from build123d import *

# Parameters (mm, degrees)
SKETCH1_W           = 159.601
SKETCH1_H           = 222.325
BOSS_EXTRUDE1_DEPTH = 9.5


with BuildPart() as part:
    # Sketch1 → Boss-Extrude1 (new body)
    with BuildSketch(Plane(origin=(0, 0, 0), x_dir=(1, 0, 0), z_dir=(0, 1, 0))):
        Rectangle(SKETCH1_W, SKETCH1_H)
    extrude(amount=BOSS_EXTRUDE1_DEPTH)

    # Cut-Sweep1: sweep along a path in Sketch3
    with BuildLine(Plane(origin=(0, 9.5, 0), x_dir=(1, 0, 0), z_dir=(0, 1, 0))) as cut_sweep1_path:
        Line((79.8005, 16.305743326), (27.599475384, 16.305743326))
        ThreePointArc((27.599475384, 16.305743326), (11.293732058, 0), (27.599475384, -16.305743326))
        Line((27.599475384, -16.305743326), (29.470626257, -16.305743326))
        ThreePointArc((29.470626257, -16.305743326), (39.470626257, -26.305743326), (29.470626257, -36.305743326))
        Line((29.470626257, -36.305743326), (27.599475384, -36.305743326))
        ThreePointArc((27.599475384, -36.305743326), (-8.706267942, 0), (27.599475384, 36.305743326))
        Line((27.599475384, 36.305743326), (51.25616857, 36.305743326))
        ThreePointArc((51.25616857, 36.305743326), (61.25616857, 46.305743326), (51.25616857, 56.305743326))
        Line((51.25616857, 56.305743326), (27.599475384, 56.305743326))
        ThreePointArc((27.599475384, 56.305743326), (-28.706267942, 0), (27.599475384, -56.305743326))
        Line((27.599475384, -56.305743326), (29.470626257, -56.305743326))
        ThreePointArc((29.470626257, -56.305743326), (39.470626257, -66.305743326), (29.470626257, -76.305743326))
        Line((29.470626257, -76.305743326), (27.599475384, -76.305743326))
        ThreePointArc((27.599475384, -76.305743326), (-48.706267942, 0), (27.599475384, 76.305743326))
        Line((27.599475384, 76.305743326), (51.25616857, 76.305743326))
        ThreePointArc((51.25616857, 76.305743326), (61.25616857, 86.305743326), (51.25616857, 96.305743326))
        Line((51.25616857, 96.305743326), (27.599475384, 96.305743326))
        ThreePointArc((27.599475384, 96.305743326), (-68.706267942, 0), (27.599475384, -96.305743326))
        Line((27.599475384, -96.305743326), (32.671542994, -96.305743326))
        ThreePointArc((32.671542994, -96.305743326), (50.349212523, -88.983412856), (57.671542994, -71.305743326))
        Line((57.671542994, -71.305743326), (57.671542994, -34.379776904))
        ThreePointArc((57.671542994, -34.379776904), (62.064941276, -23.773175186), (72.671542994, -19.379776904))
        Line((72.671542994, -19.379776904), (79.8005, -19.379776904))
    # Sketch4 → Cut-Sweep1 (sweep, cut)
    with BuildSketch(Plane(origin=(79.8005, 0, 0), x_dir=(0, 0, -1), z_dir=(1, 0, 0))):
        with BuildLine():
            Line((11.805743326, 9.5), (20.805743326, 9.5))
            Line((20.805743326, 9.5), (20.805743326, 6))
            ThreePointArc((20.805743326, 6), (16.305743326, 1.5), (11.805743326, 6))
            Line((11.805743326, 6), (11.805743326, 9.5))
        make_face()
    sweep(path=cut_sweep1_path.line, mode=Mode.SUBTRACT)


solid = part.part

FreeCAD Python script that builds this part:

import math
import FreeCAD as App
import Part
import Sketcher
from FreeCAD import Vector

doc = App.newDocument("Part")
body = doc.addObject("PartDesign::Body", "Body")

# Sketch on XZ plane
sketch1 = doc.addObject("Sketcher::SketchObject", "Sketch")
body.addObject(sketch1)
sketch1.AttachmentSupport = (doc.XZ_Plane, [""])
sketch1.MapMode = "FlatFace"
sketch1.addGeometry(Part.LineSegment(Vector(-80, -111, 0), Vector(-80, 111, 0)), False)
sketch1.addGeometry(Part.LineSegment(Vector(-80, 111, 0), Vector(80, 111, 0)), False)
sketch1.addGeometry(Part.LineSegment(Vector(80, 111, 0), Vector(80, -111, 0)), False)
sketch1.addGeometry(Part.LineSegment(Vector(80, -111, 0), Vector(-80, -111, 0)), False)
sketch1.addConstraint(Sketcher.Constraint("Coincident", 0, 2, 1, 1))
sketch1.addConstraint(Sketcher.Constraint("Coincident", 1, 2, 2, 1))
sketch1.addConstraint(Sketcher.Constraint("Coincident", 2, 2, 3, 1))
sketch1.addConstraint(Sketcher.Constraint("Coincident", 3, 2, 0, 1))
sketch1.addConstraint(Sketcher.Constraint("Vertical", 0))
sketch1.addConstraint(Sketcher.Constraint("Horizontal", 1))
sketch1.addConstraint(Sketcher.Constraint("Vertical", 2))
sketch1.addConstraint(Sketcher.Constraint("Horizontal", 3))
sketch1.addConstraint(Sketcher.Constraint("Symmetric", 0, 2, 2, 2, -1, 1))
sketch1.addConstraint(Sketcher.Constraint("DistanceX", 1, 1, 1, 2, 159.601))
sketch1.addConstraint(Sketcher.Constraint("DistanceY", 0, 1, 0, 2, 222.325))
pad1 = doc.addObject("PartDesign::Pad", "Pad")
body.addObject(pad1)
pad1.Profile = sketch1
pad1.Length = 9.5
pad1.Reversed = True

# Sketch on YZ plane
sketch2 = doc.addObject("Sketcher::SketchObject", "Sketch001")
body.addObject(sketch2)
sketch2.AttachmentSupport = (doc.YZ_Plane, [""])
sketch2.MapMode = "FlatFace"
sketch2.AttachmentOffset = App.Placement(Vector(0, 0, 79.8005), App.Rotation())
sketch2.addGeometry(Part.LineSegment(Vector(9.5, -20.8, 0), Vector(9.5, -11.8, 0)), False)
sketch2.addGeometry(Part.LineSegment(Vector(9.5, -11.8, 0), Vector(6, -11.8, 0)), False)
sketch2.addGeometry(Part.ArcOfCircle(Part.Circle(Vector(6, -16.3, 0), Vector(0, 0, 1), 4.5), math.radians(90), math.radians(270)), False)
sketch2.addGeometry(Part.LineSegment(Vector(6, -20.8, 0), Vector(9.5, -20.8, 0)), False)
sketch2.addConstraint(Sketcher.Constraint("Coincident", 0, 2, 1, 1))
sketch2.addConstraint(Sketcher.Constraint("Tangent", 1, 2, 2, 1))
sketch2.addConstraint(Sketcher.Constraint("Tangent", 2, 2, 3, 1))
sketch2.addConstraint(Sketcher.Constraint("Coincident", 3, 2, 0, 1))
sketch2.addConstraint(Sketcher.Constraint("Vertical", 0))
sketch2.addConstraint(Sketcher.Constraint("Horizontal", 1))
sketch2.addConstraint(Sketcher.Constraint("Horizontal", 3))
sketch2.addConstraint(Sketcher.Constraint("Radius", 2, 4.5))
sketch2.addConstraint(Sketcher.Constraint("DistanceX", 1, 2, 1, 1, 3.5))
sketch2.addConstraint(Sketcher.Constraint("DistanceX", -1, 1, 2, 3, 6.0))
sketch2.addConstraint(Sketcher.Constraint("DistanceY", 2, 3, -1, 1, 16.305743))

# Sketch on XZ plane
sketch3 = doc.addObject("Sketcher::SketchObject", "Sketch002")
body.addObject(sketch3)
sketch3.AttachmentSupport = (doc.XZ_Plane, [""])
sketch3.MapMode = "FlatFace"
sketch3.AttachmentOffset = App.Placement(Vector(0, 0, -9.5), App.Rotation())
sketch3.addGeometry(Part.LineSegment(Vector(79.8, -16.3, 0), Vector(27.6, -16.3, 0)), False)
sketch3.addGeometry(Part.ArcOfCircle(Part.Circle(Vector(27.6, 0, 0), Vector(0, 0, 1), 16.3), math.radians(90), math.radians(270)), False)
sketch3.addGeometry(Part.LineSegment(Vector(27.6, 16.3, 0), Vector(29.5, 16.3, 0)), False)
sketch3.addGeometry(Part.ArcOfCircle(Part.Circle(Vector(29.5, 26.3, 0), Vector(0, 0, 1), 10), math.radians(-90), math.radians(90)), False)
sketch3.addGeometry(Part.LineSegment(Vector(29.5, 36.3, 0), Vector(27.6, 36.3, 0)), False)
sketch3.addGeometry(Part.ArcOfCircle(Part.Circle(Vector(27.6, 0, 0), Vector(0, 0, 1), 36.3), math.radians(90), math.radians(270)), False)
sketch3.addGeometry(Part.LineSegment(Vector(27.6, -36.3, 0), Vector(51.3, -36.3, 0)), False)
sketch3.addGeometry(Part.ArcOfCircle(Part.Circle(Vector(51.3, -46.3, 0), Vector(0, 0, 1), 10), math.radians(-90), math.radians(90)), False)
sketch3.addGeometry(Part.LineSegment(Vector(51.3, -56.3, 0), Vector(27.6, -56.3, 0)), False)
sketch3.addGeometry(Part.ArcOfCircle(Part.Circle(Vector(27.6, 0, 0), Vector(0, 0, 1), 56.3), math.radians(90), math.radians(270)), False)
sketch3.addGeometry(Part.LineSegment(Vector(27.6, 56.3, 0), Vector(29.5, 56.3, 0)), False)
sketch3.addGeometry(Part.ArcOfCircle(Part.Circle(Vector(29.5, 66.3, 0), Vector(0, 0, 1), 10), math.radians(-90), math.radians(90)), False)
sketch3.addGeometry(Part.LineSegment(Vector(29.5, 76.3, 0), Vector(27.6, 76.3, 0)), False)
sketch3.addGeometry(Part.ArcOfCircle(Part.Circle(Vector(27.6, 0, 0), Vector(0, 0, 1), 76.3), math.radians(90), math.radians(270)), False)
sketch3.addGeometry(Part.LineSegment(Vector(27.6, -76.3, 0), Vector(51.3, -76.3, 0)), False)
sketch3.addGeometry(Part.ArcOfCircle(Part.Circle(Vector(51.3, -86.3, 0), Vector(0, 0, 1), 10), math.radians(-90), math.radians(90)), False)
sketch3.addGeometry(Part.LineSegment(Vector(51.3, -96.3, 0), Vector(27.6, -96.3, 0)), False)
sketch3.addGeometry(Part.ArcOfCircle(Part.Circle(Vector(27.6, 0, 0), Vector(0, 0, 1), 96.3), math.radians(90), math.radians(270)), False)
sketch3.addGeometry(Part.LineSegment(Vector(27.6, 96.3, 0), Vector(32.7, 96.3, 0)), False)
sketch3.addGeometry(Part.ArcOfCircle(Part.Circle(Vector(32.7, 71.3, 0), Vector(0, 0, 1), 25), math.radians(0), math.radians(90)), False)
sketch3.addGeometry(Part.LineSegment(Vector(57.7, 71.3, 0), Vector(57.7, 34.4, 0)), False)
sketch3.addGeometry(Part.ArcOfCircle(Part.Circle(Vector(72.7, 34.4, 0), Vector(0, 0, 1), 15), math.radians(180), math.radians(270)), False)
sketch3.addGeometry(Part.LineSegment(Vector(72.7, 19.4, 0), Vector(79.8, 19.4, 0)), False)
sketch3.addConstraint(Sketcher.Constraint("Tangent", 0, 2, 1, 2))
sketch3.addConstraint(Sketcher.Constraint("Tangent", 1, 1, 2, 1))
sketch3.addConstraint(Sketcher.Constraint("Tangent", 2, 2, 3, 1))
sketch3.addConstraint(Sketcher.Constraint("Tangent", 3, 2, 4, 1))
sketch3.addConstraint(Sketcher.Constraint("Tangent", 4, 2, 5, 1))
sketch3.addConstraint(Sketcher.Constraint("Tangent", 5, 2, 6, 1))
sketch3.addConstraint(Sketcher.Constraint("Tangent", 6, 2, 7, 2))
sketch3.addConstraint(Sketcher.Constraint("Tangent", 7, 1, 8, 1))
sketch3.addConstraint(Sketcher.Constraint("Tangent", 8, 2, 9, 2))
sketch3.addConstraint(Sketcher.Constraint("Tangent", 9, 1, 10, 1))
sketch3.addConstraint(Sketcher.Constraint("Tangent", 10, 2, 11, 1))
sketch3.addConstraint(Sketcher.Constraint("Tangent", 11, 2, 12, 1))
sketch3.addConstraint(Sketcher.Constraint("Tangent", 12, 2, 13, 1))
sketch3.addConstraint(Sketcher.Constraint("Tangent", 13, 2, 14, 1))
sketch3.addConstraint(Sketcher.Constraint("Tangent", 14, 2, 15, 2))
sketch3.addConstraint(Sketcher.Constraint("Tangent", 15, 1, 16, 1))
sketch3.addConstraint(Sketcher.Constraint("Tangent", 16, 2, 17, 2))
sketch3.addConstraint(Sketcher.Constraint("Tangent", 17, 1, 18, 1))
sketch3.addConstraint(Sketcher.Constraint("Tangent", 18, 2, 19, 2))
sketch3.addConstraint(Sketcher.Constraint("Tangent", 19, 1, 20, 1))
sketch3.addConstraint(Sketcher.Constraint("Tangent", 20, 2, 21, 1))
sketch3.addConstraint(Sketcher.Constraint("Tangent", 21, 2, 22, 1))
sketch3.addConstraint(Sketcher.Constraint("Horizontal", 0))
sketch3.addConstraint(Sketcher.Constraint("Horizontal", 2))
sketch3.addConstraint(Sketcher.Constraint("Horizontal", 4))
sketch3.addConstraint(Sketcher.Constraint("Horizontal", 6))
sketch3.addConstraint(Sketcher.Constraint("Horizontal", 8))
sketch3.addConstraint(Sketcher.Constraint("Horizontal", 10))
sketch3.addConstraint(Sketcher.Constraint("Horizontal", 12))
sketch3.addConstraint(Sketcher.Constraint("Horizontal", 14))
sketch3.addConstraint(Sketcher.Constraint("Horizontal", 16))
sketch3.addConstraint(Sketcher.Constraint("Horizontal", 18))
sketch3.addConstraint(Sketcher.Constraint("Vertical", 20))
sketch3.addConstraint(Sketcher.Constraint("Horizontal", 22))
sketch3.addConstraint(Sketcher.Constraint("Coincident", 5, 3, 1, 3))
sketch3.addConstraint(Sketcher.Constraint("Coincident", 9, 3, 1, 3))
sketch3.addConstraint(Sketcher.Constraint("Coincident", 13, 3, 1, 3))
sketch3.addConstraint(Sketcher.Constraint("Coincident", 17, 3, 1, 3))
sketch3.addConstraint(Sketcher.Constraint("Equal", 3, 7))
sketch3.addConstraint(Sketcher.Constraint("Equal", 7, 11))
sketch3.addConstraint(Sketcher.Constraint("Equal", 11, 15))
sketch3.addConstraint(Sketcher.Constraint("PointOnObject", 1, 3, -1))
sketch3.addConstraint(Sketcher.Constraint("Vertical", 3, 3, 11, 3))
sketch3.addConstraint(Sketcher.Constraint("Vertical", 7, 3, 15, 3))
sketch3.addConstraint(Sketcher.Constraint("Vertical", 0, 1, 22, 2))
sketch3.addConstraint(Sketcher.Constraint("Radius", 3, 10.0))
sketch3.addConstraint(Sketcher.Constraint("Radius", 19, 25.0))
sketch3.addConstraint(Sketcher.Constraint("Radius", 21, 15.0))
sketch3.addConstraint(Sketcher.Constraint("Radius", 1, 16.305743))
sketch3.addConstraint(Sketcher.Constraint("DistanceX", 2, 1, 2, 2, 1.871151))
sketch3.addConstraint(Sketcher.Constraint("DistanceX", -1, 1, 0, 1, 79.8005))
sketch3.addConstraint(Sketcher.Constraint("DistanceX", 0, 2, 0, 1, 52.201025))
sketch3.addConstraint(Sketcher.Constraint("DistanceX", 6, 1, 6, 2, 23.656693))
sketch3.addConstraint(Sketcher.Constraint("DistanceX", 18, 1, 18, 2, 5.072068))
sketch3.addConstraint(Sketcher.Constraint("DistanceY", 20, 2, 20, 1, 36.925966))
doc.recompute()

subtractivepipe = doc.addObject("PartDesign::SubtractivePipe", "SubtractivePipe")
body.addObject(subtractivepipe)
subtractivepipe.Profile = sketch2
subtractivepipe.Spine = (sketch3, ["Edge1", "Edge2", "Edge3", "Edge4", "Edge5", "Edge6", "Edge7", "Edge8", "Edge9", "Edge10", "Edge11", "Edge12", "Edge13", "Edge14", "Edge15", "Edge16", "Edge17", "Edge18", "Edge19", "Edge20", "Edge21", "Edge22", "Edge23"])

doc.recompute()
